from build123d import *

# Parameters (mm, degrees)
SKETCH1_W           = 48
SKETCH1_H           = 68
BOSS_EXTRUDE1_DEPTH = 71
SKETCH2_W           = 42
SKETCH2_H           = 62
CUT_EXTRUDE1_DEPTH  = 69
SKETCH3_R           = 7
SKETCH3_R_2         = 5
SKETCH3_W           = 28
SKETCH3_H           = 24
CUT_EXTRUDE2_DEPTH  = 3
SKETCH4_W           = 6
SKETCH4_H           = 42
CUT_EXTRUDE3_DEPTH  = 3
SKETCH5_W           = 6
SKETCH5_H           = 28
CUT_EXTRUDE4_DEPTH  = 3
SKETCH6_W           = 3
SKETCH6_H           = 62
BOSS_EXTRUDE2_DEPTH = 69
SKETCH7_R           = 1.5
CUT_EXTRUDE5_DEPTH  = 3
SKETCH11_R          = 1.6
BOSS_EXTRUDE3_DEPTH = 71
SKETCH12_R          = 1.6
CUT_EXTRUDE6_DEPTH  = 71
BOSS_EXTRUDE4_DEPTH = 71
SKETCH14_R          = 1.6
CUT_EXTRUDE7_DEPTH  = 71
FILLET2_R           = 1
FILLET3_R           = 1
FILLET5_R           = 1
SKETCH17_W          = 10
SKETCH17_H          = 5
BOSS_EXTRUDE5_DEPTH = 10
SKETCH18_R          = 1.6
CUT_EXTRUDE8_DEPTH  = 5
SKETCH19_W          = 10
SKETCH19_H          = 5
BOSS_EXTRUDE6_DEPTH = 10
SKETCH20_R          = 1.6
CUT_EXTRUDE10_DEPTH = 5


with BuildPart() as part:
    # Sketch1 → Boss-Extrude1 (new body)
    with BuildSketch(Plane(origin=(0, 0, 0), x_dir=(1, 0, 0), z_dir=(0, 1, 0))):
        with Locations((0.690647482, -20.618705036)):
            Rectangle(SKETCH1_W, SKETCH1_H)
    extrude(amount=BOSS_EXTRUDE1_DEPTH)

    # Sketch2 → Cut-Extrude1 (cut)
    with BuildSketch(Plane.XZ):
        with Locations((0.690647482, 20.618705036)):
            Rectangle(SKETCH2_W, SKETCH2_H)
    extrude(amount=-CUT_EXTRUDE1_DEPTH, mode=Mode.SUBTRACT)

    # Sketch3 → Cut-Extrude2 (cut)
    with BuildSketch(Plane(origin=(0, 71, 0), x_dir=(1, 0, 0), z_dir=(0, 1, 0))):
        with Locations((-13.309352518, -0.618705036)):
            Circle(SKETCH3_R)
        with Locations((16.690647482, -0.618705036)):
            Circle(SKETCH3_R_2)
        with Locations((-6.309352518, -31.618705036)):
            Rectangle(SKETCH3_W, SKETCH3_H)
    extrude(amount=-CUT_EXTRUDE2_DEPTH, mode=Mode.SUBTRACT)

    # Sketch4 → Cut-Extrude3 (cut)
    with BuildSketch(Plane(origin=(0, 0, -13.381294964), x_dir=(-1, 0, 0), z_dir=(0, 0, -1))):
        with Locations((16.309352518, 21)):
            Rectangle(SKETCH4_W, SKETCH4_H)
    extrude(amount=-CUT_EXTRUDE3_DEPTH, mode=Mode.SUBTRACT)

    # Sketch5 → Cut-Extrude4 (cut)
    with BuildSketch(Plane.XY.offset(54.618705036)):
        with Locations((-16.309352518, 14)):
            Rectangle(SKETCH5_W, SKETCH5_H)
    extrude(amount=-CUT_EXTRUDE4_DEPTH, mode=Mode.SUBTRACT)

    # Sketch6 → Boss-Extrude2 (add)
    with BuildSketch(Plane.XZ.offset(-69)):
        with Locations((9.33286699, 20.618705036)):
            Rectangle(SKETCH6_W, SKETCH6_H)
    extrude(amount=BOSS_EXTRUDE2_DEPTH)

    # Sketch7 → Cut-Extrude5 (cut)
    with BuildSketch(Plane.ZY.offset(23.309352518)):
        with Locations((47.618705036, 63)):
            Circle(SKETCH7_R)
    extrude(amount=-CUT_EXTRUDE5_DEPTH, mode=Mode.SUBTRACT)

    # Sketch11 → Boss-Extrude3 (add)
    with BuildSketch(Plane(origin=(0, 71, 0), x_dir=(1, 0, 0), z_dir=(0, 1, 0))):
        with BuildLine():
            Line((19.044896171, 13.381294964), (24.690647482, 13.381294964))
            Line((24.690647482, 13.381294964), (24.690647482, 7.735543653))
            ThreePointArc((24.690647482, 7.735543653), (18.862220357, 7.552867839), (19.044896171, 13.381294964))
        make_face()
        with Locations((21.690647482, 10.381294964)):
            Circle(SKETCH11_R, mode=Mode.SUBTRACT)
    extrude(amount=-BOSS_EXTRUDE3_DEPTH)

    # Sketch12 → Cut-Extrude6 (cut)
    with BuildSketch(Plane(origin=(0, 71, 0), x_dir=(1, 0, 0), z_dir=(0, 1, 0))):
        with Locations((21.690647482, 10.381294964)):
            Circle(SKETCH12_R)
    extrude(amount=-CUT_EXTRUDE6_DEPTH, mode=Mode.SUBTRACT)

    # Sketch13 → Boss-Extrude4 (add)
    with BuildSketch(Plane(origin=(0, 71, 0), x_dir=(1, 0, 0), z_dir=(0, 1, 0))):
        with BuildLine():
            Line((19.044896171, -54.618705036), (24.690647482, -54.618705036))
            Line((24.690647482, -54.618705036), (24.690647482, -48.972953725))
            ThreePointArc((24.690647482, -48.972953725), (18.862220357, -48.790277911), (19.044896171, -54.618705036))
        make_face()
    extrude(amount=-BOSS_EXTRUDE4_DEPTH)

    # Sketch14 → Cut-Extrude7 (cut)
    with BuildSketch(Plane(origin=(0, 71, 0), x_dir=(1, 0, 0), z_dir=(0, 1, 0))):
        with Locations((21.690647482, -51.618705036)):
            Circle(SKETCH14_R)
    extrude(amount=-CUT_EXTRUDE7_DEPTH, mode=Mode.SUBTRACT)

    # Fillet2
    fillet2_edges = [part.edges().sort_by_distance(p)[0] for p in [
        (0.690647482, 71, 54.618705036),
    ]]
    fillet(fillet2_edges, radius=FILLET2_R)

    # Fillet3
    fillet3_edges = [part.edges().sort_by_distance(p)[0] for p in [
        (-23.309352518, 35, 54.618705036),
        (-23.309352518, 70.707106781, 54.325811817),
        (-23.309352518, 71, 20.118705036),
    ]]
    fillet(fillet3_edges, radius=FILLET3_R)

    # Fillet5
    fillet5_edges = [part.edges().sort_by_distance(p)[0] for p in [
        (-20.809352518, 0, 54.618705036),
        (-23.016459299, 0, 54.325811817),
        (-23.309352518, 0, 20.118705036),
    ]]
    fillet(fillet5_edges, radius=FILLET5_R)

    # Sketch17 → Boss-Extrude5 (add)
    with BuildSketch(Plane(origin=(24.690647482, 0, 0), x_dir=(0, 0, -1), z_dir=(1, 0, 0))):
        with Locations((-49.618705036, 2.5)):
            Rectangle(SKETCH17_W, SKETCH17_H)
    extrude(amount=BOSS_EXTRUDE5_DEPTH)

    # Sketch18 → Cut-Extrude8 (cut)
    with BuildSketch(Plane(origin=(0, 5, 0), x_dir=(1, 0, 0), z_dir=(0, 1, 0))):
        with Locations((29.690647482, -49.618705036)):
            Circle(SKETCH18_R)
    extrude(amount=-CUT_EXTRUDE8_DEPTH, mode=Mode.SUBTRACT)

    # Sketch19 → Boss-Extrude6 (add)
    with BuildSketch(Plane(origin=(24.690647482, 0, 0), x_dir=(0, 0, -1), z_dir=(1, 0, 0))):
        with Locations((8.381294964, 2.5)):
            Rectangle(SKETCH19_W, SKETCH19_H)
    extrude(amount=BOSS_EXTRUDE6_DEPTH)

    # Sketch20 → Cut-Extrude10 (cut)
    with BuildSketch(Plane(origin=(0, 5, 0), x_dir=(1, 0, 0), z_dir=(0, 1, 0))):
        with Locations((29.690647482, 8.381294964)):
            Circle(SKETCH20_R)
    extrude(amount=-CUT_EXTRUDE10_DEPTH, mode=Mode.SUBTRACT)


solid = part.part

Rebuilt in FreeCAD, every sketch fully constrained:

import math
import FreeCAD as App
import Part
import Sketcher

V = App.Vector


def edges_at(feature, points):
    """Names of the edges that pass closest to the given points."""
    edges = feature.Shape.Edges
    near = lambda p: min(range(len(edges)), key=lambda i: edges[i].distToShape(Part.Vertex(*p))[0])
    return sorted({f"Edge{near(p) + 1}" for p in points})


def add_polygon(sketch, points):
    """Adds a closed chain of lines whose ends are joined by coincident constraints."""
    first, n = sketch.GeometryCount, len(points)
    for a, b in zip(points, points[1:] + points[:1]):
        sketch.addGeometry(Part.LineSegment(App.Vector(*a, 0), App.Vector(*b, 0)), False)
    for i in range(n):
        sketch.addConstraint(Sketcher.Constraint("Coincident", first + i, 2, first + (i + 1) % n, 1))

doc = App.newDocument("Part")
body = doc.addObject("PartDesign::Body", "Body")

# Sketch on XZ plane
sketch1 = doc.addObject("Sketcher::SketchObject", "Sketch")
body.addObject(sketch1)
sketch1.AttachmentSupport = (doc.XZ_Plane, [""])
sketch1.MapMode = "FlatFace"
add_polygon(sketch1, [(-23, -13), (-23, 55), (25, 55), (25, -13)])  # lines 0-3
sketch1.addConstraint([
    Sketcher.Constraint("Vertical", 0),
    Sketcher.Constraint("Horizontal", 1),
    Sketcher.Constraint("Vertical", 2),
    Sketcher.Constraint("Horizontal", 3),
    Sketcher.Constraint("DistanceX", 1, 1, 1, 2, 48.0),
    Sketcher.Constraint("DistanceY", 0, 1, 0, 2, 68.0),
    Sketcher.Constraint("DistanceX", 0, 2, -1, 1, 23.309353),
    Sketcher.Constraint("DistanceY", -1, 1, 0, 2, 54.618705),
])
pad1 = doc.addObject("PartDesign::Pad", "Pad")
body.addObject(pad1)
pad1.Profile = sketch1
pad1.Length = 71
pad1.Reversed = True

# Sketch on XZ plane
sketch2 = doc.addObject("Sketcher::SketchObject", "Sketch001")
body.addObject(sketch2)
sketch2.AttachmentSupport = (doc.XZ_Plane, [""])
sketch2.MapMode = "FlatFace"
add_polygon(sketch2, [(-20, 52), (-20, -10), (22, -10), (22, 52)])  # lines 0-3
sketch2.addConstraint([
    Sketcher.Constraint("Vertical", 0),
    Sketcher.Constraint("Horizontal", 1),
    Sketcher.Constraint("Vertical", 2),
    Sketcher.Constraint("Horizontal", 3),
    Sketcher.Constraint("DistanceX", 1, 1, 1, 2, 42.0),
    Sketcher.Constraint("DistanceY", 0, 2, 0, 1, 62.0),
    Sketcher.Constraint("DistanceX", 0, 2, -1, 1, 20.309353),
    Sketcher.Constraint("DistanceY", 0, 2, -1, 1, 10.381295),
])
pocket1 = doc.addObject("PartDesign::Pocket", "Pocket")
body.addObject(pocket1)
pocket1.Profile = sketch2
pocket1.Length = 69

# Sketch on XZ plane
sketch3 = doc.addObject("Sketcher::SketchObject", "Sketch002")
body.addObject(sketch3)
sketch3.AttachmentSupport = (doc.XZ_Plane, [""])
sketch3.MapMode = "FlatFace"
sketch3.AttachmentOffset = App.Placement(V(0, 0, -71), App.Rotation())
sketch3.addGeometry(Part.Circle(V(-13, 1, 0), V(0, 0, 1), 7), False)  # 0
sketch3.addGeometry(Part.Circle(V(17, 1, 0), V(0, 0, 1), 5), False)  # 1
add_polygon(sketch3, [(-20, 20), (-20, 44), (8, 44), (8, 20)])  # lines 2-5
sketch3.addConstraint([
    Sketcher.Constraint("Vertical", 2),
    Sketcher.Constraint("Horizontal", 3),
    Sketcher.Constraint("Vertical", 4),
    Sketcher.Constraint("Horizontal", 5),
    Sketcher.Constraint("Horizontal", 0, 3, 1, 3),
    Sketcher.Constraint("Diameter", 0, 14.0),
    Sketcher.Constraint("Diameter", 1, 10.0),
    Sketcher.Constraint("DistanceX", 3, 1, 3, 2, 28.0),
    Sketcher.Constraint("DistanceY", 2, 1, 2, 2, 24.0),
    Sketcher.Constraint("DistanceX", 0, 3, 1, 3, 30.0),
    Sketcher.Constraint("DistanceX", 2, 2, 0, 3, 7.0),
    Sketcher.Constraint("DistanceY", 0, 3, 2, 2, 43.0),
    Sketcher.Constraint("DistanceX", 0, 3, -1, 1, 13.309353),
    Sketcher.Constraint("DistanceY", -1, 1, 0, 3, 0.618705),
])
pocket2 = doc.addObject("PartDesign::Pocket", "Pocket001")
body.addObject(pocket2)
pocket2.Profile = sketch3
pocket2.Length = 3
pocket2.Reversed = True

# Sketch on XY plane
sketch4 = doc.addObject("Sketcher::SketchObject", "Sketch003")
body.addObject(sketch4)
sketch4.AttachmentSupport = (doc.XY_Plane, [""])
sketch4.MapMode = "FlatFace"
sketch4.AttachmentOffset = App.Placement(V(0, 0, -13.381295), App.Rotation())
add_polygon(sketch4, [(-13, 42), (-13, 0), (-19, 0), (-19, 42)])  # lines 0-3
sketch4.addConstraint([
    Sketcher.Constraint("Vertical", 0),
    Sketcher.Constraint("Horizontal", 1),
    Sketcher.Constraint("Vertical", 2),
    Sketcher.Constraint("Horizontal", 3),
    Sketcher.Constraint("PointOnObject", 0, 2, -1),
    Sketcher.Constraint("DistanceX", 1, 2, 1, 1, 6.0),
    Sketcher.Constraint("DistanceY", 0, 2, 0, 1, 42.0),
    Sketcher.Constraint("DistanceX", 0, 2, -1, 1, 13.309353),
])
pocket3 = doc.addObject("PartDesign::Pocket", "Pocket002")
body.addObject(pocket3)
pocket3.Profile = sketch4
pocket3.Length = 3
pocket3.Reversed = True

# Sketch on XY plane
sketch5 = doc.addObject("Sketcher::SketchObject", "Sketch004")
body.addObject(sketch5)
sketch5.AttachmentSupport = (doc.XY_Plane, [""])
sketch5.MapMode = "FlatFace"
sketch5.AttachmentOffset = App.Placement(V(0, 0, 54.618705), App.Rotation())
add_polygon(sketch5, [(-19, 28), (-19, 0), (-13, 0), (-13, 28)])  # lines 0-3
sketch5.addConstraint([
    Sketcher.Constraint("Vertical", 0),
    Sketcher.Constraint("Horizontal", 1),
    Sketcher.Constraint("Vertical", 2),
    Sketcher.Constraint("Horizontal", 3),
    Sketcher.Constraint("PointOnObject", 0, 2, -1),
    Sketcher.Constraint("DistanceX", 1, 1, 1, 2, 6.0),
    Sketcher.Constraint("DistanceY", 0, 2, 0, 1, 28.0),
    Sketcher.Constraint("DistanceX", 0, 2, -1, 1, 19.309353),
])
pocket4 = doc.addObject("PartDesign::Pocket", "Pocket003")
body.addObject(pocket4)
pocket4.Profile = sketch5
pocket4.Length = 3

# Sketch on XZ plane
sketch6 = doc.addObject("Sketcher::SketchObject", "Sketch005")
body.addObject(sketch6)
sketch6.AttachmentSupport = (doc.XZ_Plane, [""])
sketch6.MapMode = "FlatFace"
sketch6.AttachmentOffset = App.Placement(V(0, 0, -69), App.Rotation())
add_polygon(sketch6, [(7.8, 51.6), (7.8, -10.4), (10.8, -10.4), (10.8, 51.6)])  # lines 0-3
sketch6.addConstraint([
    Sketcher.Constraint("Vertical", 0),
    Sketcher.Constraint("Horizontal", 1),
    Sketcher.Constraint("Vertical", 2),
    Sketcher.Constraint("Horizontal", 3),
    Sketcher.Constraint("DistanceX", 1, 1, 1, 2, 3.0),
    Sketcher.Constraint("DistanceY", 0, 2, 0, 1, 62.0),
    Sketcher.Constraint("DistanceX", -1, 1, 0, 2, 7.832867),
    Sketcher.Constraint("DistanceY", 0, 2, -1, 1, 10.381295),
])
pad2 = doc.addObject("PartDesign::Pad", "Pad001")
body.addObject(pad2)
pad2.Profile = sketch6
pad2.Length = 69

# Sketch on YZ plane
sketch7 = doc.addObject("Sketcher::SketchObject", "Sketch006")
body.addObject(sketch7)
sketch7.AttachmentSupport = (doc.YZ_Plane, [""])
sketch7.MapMode = "FlatFace"
sketch7.AttachmentOffset = App.Placement(V(0, 0, -23.309353), App.Rotation())
sketch7.addGeometry(Part.Circle(V(63, 47.6, 0), V(0, 0, 1), 1.5), False)
sketch7.addConstraint([
    Sketcher.Constraint("Diameter", 0, 3.0),
    Sketcher.Constraint("DistanceX", -1, 1, 0, 3, 63.0),
    Sketcher.Constraint("DistanceY", -1, 1, 0, 3, 47.618705),
])
pocket5 = doc.addObject("PartDesign::Pocket", "Pocket004")
body.addObject(pocket5)
pocket5.Profile = sketch7
pocket5.Length = 3
pocket5.Reversed = True

# Sketch on XZ plane
sketch8 = doc.addObject("Sketcher::SketchObject", "Sketch007")
body.addObject(sketch8)
sketch8.AttachmentSupport = (doc.XZ_Plane, [""])
sketch8.MapMode = "FlatFace"
sketch8.AttachmentOffset = App.Placement(V(0, 0, -71), App.Rotation())
sketch8.addGeometry([
    Part.LineSegment(V(24.7, -13.4, 0), V(19, -13.4, 0)),
    Part.ArcOfCircle(Part.Circle(V(21.7, -10.4, 0), V(0, 0, 1), 4), math.radians(41), math.radians(229)),
    Part.LineSegment(V(24.7, -7.7, 0), V(24.7, -13.4, 0)),
    Part.Circle(V(21.7, -10.4, 0), V(0, 0, 1), 1.6),
], False)
sketch8.addConstraint([
    Sketcher.Constraint("Coincident", 0, 2, 1, 2),
    Sketcher.Constraint("Coincident", 1, 1, 2, 1),
    Sketcher.Constraint("Coincident", 2, 2, 0, 1),
    Sketcher.Constraint("Horizontal", 0),
    Sketcher.Constraint("Vertical", 2),
    Sketcher.Constraint("Coincident", 3, 3, 1, 3),
    Sketcher.Constraint("Equal", 0, 2),
    Sketcher.Constraint("Radius", 1, 4.0),
    Sketcher.Constraint("Diameter", 3, 3.2),
    Sketcher.Constraint("DistanceY", 0, 2, 1, 3, 3.0),
    Sketcher.Constraint("DistanceX", -1, 1, 1, 3, 21.690647),
    Sketcher.Constraint("DistanceY", 1, 3, -1, 1, 10.381295),
])
pad3 = doc.addObject("PartDesign::Pad", "Pad002")
body.addObject(pad3)
pad3.Profile = sketch8
pad3.Length = 71

# Sketch on XZ plane
sketch9 = doc.addObject("Sketcher::SketchObject", "Sketch008")
body.addObject(sketch9)
sketch9.AttachmentSupport = (doc.XZ_Plane, [""])
sketch9.MapMode = "FlatFace"
sketch9.AttachmentOffset = App.Placement(V(0, 0, -71), App.Rotation())
sketch9.addGeometry(Part.Circle(V(21.7, -10.4, 0), V(0, 0, 1), 1.6), False)
sketch9.addConstraint([
    Sketcher.Constraint("Diameter", 0, 3.2),
    Sketcher.Constraint("DistanceX", -1, 1, 0, 3, 21.690647),
    Sketcher.Constraint("DistanceY", 0, 3, -1, 1, 10.381295),
])
pocket6 = doc.addObject("PartDesign::Pocket", "Pocket005")
body.addObject(pocket6)
pocket6.Profile = sketch9
pocket6.Length = 71
pocket6.Reversed = True

# Sketch on XZ plane
sketch10 = doc.addObject("Sketcher::SketchObject", "Sketch009")
body.addObject(sketch10)
sketch10.AttachmentSupport = (doc.XZ_Plane, [""])
sketch10.MapMode = "FlatFace"
sketch10.AttachmentOffset = App.Placement(V(0, 0, -71), App.Rotation())
sketch10.addGeometry([
    Part.LineSegment(V(19, 54.6, 0), V(24.7, 54.6, 0)),
    Part.LineSegment(V(24.7, 54.6, 0), V(24.7, 49, 0)),
    Part.ArcOfCircle(Part.Circle(V(21.7, 51.6, 0), V(0, 0, 1), 4), math.radians(131), math.radians(319)),
], False)
sketch10.addConstraint([
    Sketcher.Constraint("Coincident", 0, 2, 1, 1),
    Sketcher.Constraint("Coincident", 1, 2, 2, 2),
    Sketcher.Constraint("Coincident", 2, 1, 0, 1),
    Sketcher.Constraint("Horizontal", 0),
    Sketcher.Constraint("Vertical", 1),
    Sketcher.Constraint("Equal", 0, 1),
    Sketcher.Constraint("Radius", 2, 4.0),
    Sketcher.Constraint("DistanceX", 2, 3, 0, 2, 3.0),
    Sketcher.Constraint("DistanceX", -1, 1, 2, 3, 21.690647),
    Sketcher.Constraint("DistanceY", -1, 1, 2, 3, 51.618705),
])
pad4 = doc.addObject("PartDesign::Pad", "Pad003")
body.addObject(pad4)
pad4.Profile = sketch10
pad4.Length = 71

# Sketch on XZ plane
sketch11 = doc.addObject("Sketcher::SketchObject", "Sketch010")
body.addObject(sketch11)
sketch11.AttachmentSupport = (doc.XZ_Plane, [""])
sketch11.MapMode = "FlatFace"
sketch11.AttachmentOffset = App.Placement(V(0, 0, -71), App.Rotation())
sketch11.addGeometry(Part.Circle(V(21.7, 51.6, 0), V(0, 0, 1), 1.6), False)
sketch11.addConstraint([
    Sketcher.Constraint("Diameter", 0, 3.2),
    Sketcher.Constraint("DistanceX", -1, 1, 0, 3, 21.690647),
    Sketcher.Constraint("DistanceY", -1, 1, 0, 3, 51.618705),
])
pocket7 = doc.addObject("PartDesign::Pocket", "Pocket006")
body.addObject(pocket7)
pocket7.Profile = sketch11
pocket7.Length = 71
pocket7.Reversed = True
doc.recompute()

fillet = doc.addObject("PartDesign::Fillet", "Fillet")
body.addObject(fillet)
fillet.Base = (pocket7, edges_at(pocket7, [(0.691, 71, 54.619)]))
fillet.Radius = 1
doc.recompute()

fillet2 = doc.addObject("PartDesign::Fillet", "Fillet001")
body.addObject(fillet2)
fillet2.Base = (fillet, edges_at(fillet, [(-23.309, 35, 54.619), (-23.309, 70.707, 54.326), (-23.309, 71, 20.119)]))
fillet2.Radius = 1
doc.recompute()

fillet3 = doc.addObject("PartDesign::Fillet", "Fillet002")
body.addObject(fillet3)
fillet3.Base = (fillet2, edges_at(fillet2, [(-20.809, 0, 54.619), (-23.016, 0, 54.326), (-23.309, 0, 20.119)]))
fillet3.Radius = 1

# Sketch on YZ plane
sketch12 = doc.addObject("Sketcher::SketchObject", "Sketch011")
body.addObject(sketch12)
sketch12.AttachmentSupport = (doc.YZ_Plane, [""])
sketch12.MapMode = "FlatFace"
sketch12.AttachmentOffset = App.Placement(V(0, 0, 24.690647), App.Rotation())
add_polygon(sketch12, [(5, 55), (0, 55), (0, 45), (5, 45)])  # lines 0-3
sketch12.addConstraint([
    Sketcher.Constraint("Horizontal", 0),
    Sketcher.Constraint("Vertical", 1),
    Sketcher.Constraint("Horizontal", 2),
    Sketcher.Constraint("Vertical", 3),
    Sketcher.Constraint("PointOnObject", 0, 2, -2),
    Sketcher.Constraint("DistanceX", 0, 2, 0, 1, 5.0),
    Sketcher.Constraint("DistanceY", 1, 2, 1, 1, 10.0),
    Sketcher.Constraint("DistanceY", -1, 1, 0, 2, 54.618705),
])
pad5 = doc.addObject("PartDesign::Pad", "Pad004")
body.addObject(pad5)
pad5.Profile = sketch12
pad5.Length = 10

# Sketch on XZ plane
sketch13 = doc.addObject("Sketcher::SketchObject", "Sketch012")
body.addObject(sketch13)
sketch13.AttachmentSupport = (doc.XZ_Plane, [""])
sketch13.MapMode = "FlatFace"
sketch13.AttachmentOffset = App.Placement(V(0, 0, -5), App.Rotation())
sketch13.addGeometry(Part.Circle(V(29.7, 49.6, 0), V(0, 0, 1), 1.6), False)
sketch13.addConstraint([
    Sketcher.Constraint("Diameter", 0, 3.2),
    Sketcher.Constraint("DistanceX", -1, 1, 0, 3, 29.690647),
    Sketcher.Constraint("DistanceY", -1, 1, 0, 3, 49.618705),
])
pocket8 = doc.addObject("PartDesign::Pocket", "Pocket007")
body.addObject(pocket8)
pocket8.Profile = sketch13
pocket8.Length = 5
pocket8.Reversed = True

# Sketch on YZ plane
sketch14 = doc.addObject("Sketcher::SketchObject", "Sketch013")
body.addObject(sketch14)
sketch14.AttachmentSupport = (doc.YZ_Plane, [""])
sketch14.MapMode = "FlatFace"
sketch14.AttachmentOffset = App.Placement(V(0, 0, 24.690647), App.Rotation())
add_polygon(sketch14, [(5, -3), (0, -3), (0, -13), (5, -13)])  # lines 0-3
sketch14.addConstraint([
    Sketcher.Constraint("Horizontal", 0),
    Sketcher.Constraint("Vertical", 1),
    Sketcher.Constraint("Horizontal", 2),
    Sketcher.Constraint("Vertical", 3),
    Sketcher.Constraint("PointOnObject", 0, 2, -2),
    Sketcher.Constraint("DistanceX", 0, 2, 0, 1, 5.0),
    Sketcher.Constraint("DistanceY", 1, 2, 1, 1, 10.0),
    Sketcher.Constraint("DistanceY", 0, 2, -1, 1, 3.381295),
])
pad6 = doc.addObject("PartDesign::Pad", "Pad005")
body.addObject(pad6)
pad6.Profile = sketch14
pad6.Length = 10

# Sketch on XZ plane
sketch15 = doc.addObject("Sketcher::SketchObject", "Sketch014")
body.addObject(sketch15)
sketch15.AttachmentSupport = (doc.XZ_Plane, [""])
sketch15.MapMode = "FlatFace"
sketch15.AttachmentOffset = App.Placement(V(0, 0, -5), App.Rotation())
sketch15.addGeometry(Part.Circle(V(29.7, -8.4, 0), V(0, 0, 1), 1.6), False)
sketch15.addConstraint([
    Sketcher.Constraint("Diameter", 0, 3.2),
    Sketcher.Constraint("DistanceX", -1, 1, 0, 3, 29.690647),
    Sketcher.Constraint("DistanceY", 0, 3, -1, 1, 8.381295),
])
pocket9 = doc.addObject("PartDesign::Pocket", "Pocket008")
body.addObject(pocket9)
pocket9.Profile = sketch15
pocket9.Length = 5
pocket9.Reversed = True

doc.recompute()
